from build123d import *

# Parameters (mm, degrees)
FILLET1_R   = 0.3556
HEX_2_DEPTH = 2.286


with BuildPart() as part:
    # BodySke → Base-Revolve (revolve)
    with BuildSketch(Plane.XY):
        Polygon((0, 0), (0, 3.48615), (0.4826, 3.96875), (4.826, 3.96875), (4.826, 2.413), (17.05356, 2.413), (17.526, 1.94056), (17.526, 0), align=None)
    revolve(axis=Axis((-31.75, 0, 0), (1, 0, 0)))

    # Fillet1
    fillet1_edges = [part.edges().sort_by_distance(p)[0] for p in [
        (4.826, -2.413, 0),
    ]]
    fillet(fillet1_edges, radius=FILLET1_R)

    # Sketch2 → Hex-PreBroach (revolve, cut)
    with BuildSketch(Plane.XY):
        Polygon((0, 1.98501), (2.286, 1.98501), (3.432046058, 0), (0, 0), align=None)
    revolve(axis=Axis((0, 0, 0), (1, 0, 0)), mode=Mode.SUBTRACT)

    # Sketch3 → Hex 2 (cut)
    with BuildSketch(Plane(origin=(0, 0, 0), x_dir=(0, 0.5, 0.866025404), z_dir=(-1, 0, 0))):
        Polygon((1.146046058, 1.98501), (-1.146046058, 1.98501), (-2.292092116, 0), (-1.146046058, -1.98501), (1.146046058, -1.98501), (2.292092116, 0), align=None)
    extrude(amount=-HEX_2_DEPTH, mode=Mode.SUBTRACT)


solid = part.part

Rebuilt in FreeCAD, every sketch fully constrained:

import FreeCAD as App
import Part
import Sketcher
from FreeCAD import Vector
Q = App.Units.Quantity


def edges_at(feature, points):
    """Names of the edges that pass closest to the given points."""
    edges = feature.Shape.Edges
    near = lambda p: min(range(len(edges)), key=lambda i: edges[i].distToShape(Part.Vertex(*p))[0])
    return sorted({f"Edge{near(p) + 1}" for p in points})


def add_polygon(sketch, points):
    """Adds a closed chain of lines whose ends are joined by coincident constraints."""
    first, n = sketch.GeometryCount, len(points)
    for a, b in zip(points, points[1:] + points[:1]):
        sketch.addGeometry(Part.LineSegment(App.Vector(*a, 0), App.Vector(*b, 0)), False)
    for i in range(n):
        sketch.addConstraint(Sketcher.Constraint("Coincident", first + i, 2, first + (i + 1) % n, 1))

doc = App.newDocument("Part")
params = doc.addObject("Spreadsheet::Sheet", "Params")
for row, (alias, value) in enumerate([
    ("sketch1_width", "0.69 in"),
    ("sketch1_width2", "0.171 in"),
    ("revolution_angle", "360 deg"),
    ("fillet_radius", "0.014 in"),
    ("sketch2_width", "0.09 in"),
    ("groove_angle", "360 deg"),
    ("pocket1_length", "0.09 in"),
], start=1):
    params.set(f"A{row}", alias)
    params.set(f"B{row}", "=" + value)
    params.setAlias(f"B{row}", alias)

body = doc.addObject("PartDesign::Body", "Body")

sketch1 = doc.addObject("Sketcher::SketchObject", "Sketch")
body.addObject(sketch1)
sketch1.AttachmentSupport = (doc.XY_Plane, [""])
sketch1.MapMode = "FlatFace"
add_polygon(sketch1, [(0, 3.5), (0, 0), (17.5, 0), (17.5, 1.9), (17.1, 2.4), (4.8, 2.4), (4.8, 4), (0.5, 4)])
sketch1.addConstraint(Sketcher.Constraint("Vertical", 0))
sketch1.addConstraint(Sketcher.Constraint("Horizontal", 1))
sketch1.addConstraint(Sketcher.Constraint("Vertical", 2))
sketch1.addConstraint(Sketcher.Constraint("Horizontal", 4))
sketch1.addConstraint(Sketcher.Constraint("Vertical", 5))
sketch1.addConstraint(Sketcher.Constraint("Horizontal", 6))
sketch1.addConstraint(Sketcher.Constraint("Coincident", 0, 2, -1, 1))
sketch1.addConstraint(Sketcher.Constraint("Perpendicular", 3, 7))
sketch1.addConstraint(Sketcher.Constraint("Angle", 3, Q("135 deg")))
sketch1.addConstraint(Sketcher.Constraint("DistanceX", 1, 1, 1, 2, Q("0.69 in")))
sketch1.addConstraint(Sketcher.Constraint("DistanceX", 4, 2, 2, 2, Q("0.5 in")))
sketch1.addConstraint(Sketcher.Constraint("DistanceX", 6, 2, 6, 1, Q("0.171 in")))
sketch1.addConstraint(Sketcher.Constraint("DistanceX", 4, 2, 4, 1, Q("0.4814 in")))
sketch1.addConstraint(Sketcher.Constraint("DistanceY", 2, 1, 2, 2, Q("0.0764 in")))
sketch1.addConstraint(Sketcher.Constraint("DistanceY", -1, 1, 5, 2, Q("0.15625 in")))
sketch1.setExpression("Constraints[17]", "Params.sketch1_width")
sketch1.setExpression("Constraints[19]", "Params.sketch1_width2")
revolution = doc.addObject("PartDesign::Revolution", "Revolution")
body.addObject(revolution)
revolution.Profile = sketch1
revolution.ReferenceAxis = (sketch1, ["H_Axis"])
revolution.setExpression("Angle", "Params.revolution_angle")
doc.recompute()

fillet = doc.addObject("PartDesign::Fillet", "Fillet")
body.addObject(fillet)
fillet.Base = (revolution, edges_at(revolution, [(4.826, -2.413, 0)]))
fillet.setExpression("Radius", "Params.fillet_radius")

sketch2 = doc.addObject("Sketcher::SketchObject", "Sketch001")
body.addObject(sketch2)
sketch2.AttachmentSupport = (doc.XY_Plane, [""])
sketch2.MapMode = "FlatFace"
add_polygon(sketch2, [(2.3, 2), (0, 2), (0, 0), (3.4, 0)])
sketch2.addConstraint(Sketcher.Constraint("Horizontal", 0))
sketch2.addConstraint(Sketcher.Constraint("Vertical", 1))
sketch2.addConstraint(Sketcher.Constraint("Horizontal", 2))
sketch2.addConstraint(Sketcher.Constraint("Coincident", 1, 2, -1, 1))
sketch2.addConstraint(Sketcher.Constraint("Angle", 3, Q("120 deg")))
sketch2.addConstraint(Sketcher.Constraint("DistanceX", 0, 2, 0, 1, Q("0.09 in")))
sketch2.addConstraint(Sketcher.Constraint("DistanceY", 1, 2, 1, 1, Q("1.98501 mm")))
sketch2.setExpression("Constraints[9]", "Params.sketch2_width")
groove = doc.addObject("PartDesign::Groove", "Groove")
body.addObject(groove)
groove.Profile = sketch2
groove.ReferenceAxis = (sketch2, ["H_Axis"])
groove.setExpression("Angle", "Params.groove_angle")

sketch3 = doc.addObject("Sketcher::SketchObject", "Sketch002")
body.addObject(sketch3)
sketch3.AttachmentSupport = (doc.YZ_Plane, [""])
sketch3.MapMode = "FlatFace"
add_polygon(sketch3, [(2.3, 0), (1.1, -2), (-1.1, -2), (-2.3, 0), (-1.1, 2), (1.1, 2)])
sketch3.addConstraint(Sketcher.Constraint("Horizontal", 1))
sketch3.addConstraint(Sketcher.Constraint("Horizontal", 4))
sketch3.addConstraint(Sketcher.Constraint("Symmetric", 0, 2, 3, 2, -1, 1))
sketch3.addConstraint(Sketcher.Constraint("Symmetric", 2, 2, 5, 2, -1, 1))
sketch3.addConstraint(Sketcher.Constraint("PointOnObject", 2, 2, -1))
sketch3.addConstraint(Sketcher.Constraint("Parallel", 2, 5))
sketch3.addConstraint(Sketcher.Constraint("Vertical", 1, 2, 3, 2))
sketch3.addConstraint(Sketcher.Constraint("Angle", 0, Q("-120 deg")))
sketch3.addConstraint(Sketcher.Constraint("DistanceY", 1, 2, 3, 2, Q("0.1563 in")))
sketch3.addConstraint(Sketcher.Constraint("DistanceX", 1, 2, 1, 1, Q("2.292092 mm")))
pocket1 = doc.addObject("PartDesign::Pocket", "Pocket")
body.addObject(pocket1)
pocket1.Profile = sketch3
pocket1.setExpression("Length", "Params.pocket1_length")
pocket1.Reversed = True

doc.recompute()
